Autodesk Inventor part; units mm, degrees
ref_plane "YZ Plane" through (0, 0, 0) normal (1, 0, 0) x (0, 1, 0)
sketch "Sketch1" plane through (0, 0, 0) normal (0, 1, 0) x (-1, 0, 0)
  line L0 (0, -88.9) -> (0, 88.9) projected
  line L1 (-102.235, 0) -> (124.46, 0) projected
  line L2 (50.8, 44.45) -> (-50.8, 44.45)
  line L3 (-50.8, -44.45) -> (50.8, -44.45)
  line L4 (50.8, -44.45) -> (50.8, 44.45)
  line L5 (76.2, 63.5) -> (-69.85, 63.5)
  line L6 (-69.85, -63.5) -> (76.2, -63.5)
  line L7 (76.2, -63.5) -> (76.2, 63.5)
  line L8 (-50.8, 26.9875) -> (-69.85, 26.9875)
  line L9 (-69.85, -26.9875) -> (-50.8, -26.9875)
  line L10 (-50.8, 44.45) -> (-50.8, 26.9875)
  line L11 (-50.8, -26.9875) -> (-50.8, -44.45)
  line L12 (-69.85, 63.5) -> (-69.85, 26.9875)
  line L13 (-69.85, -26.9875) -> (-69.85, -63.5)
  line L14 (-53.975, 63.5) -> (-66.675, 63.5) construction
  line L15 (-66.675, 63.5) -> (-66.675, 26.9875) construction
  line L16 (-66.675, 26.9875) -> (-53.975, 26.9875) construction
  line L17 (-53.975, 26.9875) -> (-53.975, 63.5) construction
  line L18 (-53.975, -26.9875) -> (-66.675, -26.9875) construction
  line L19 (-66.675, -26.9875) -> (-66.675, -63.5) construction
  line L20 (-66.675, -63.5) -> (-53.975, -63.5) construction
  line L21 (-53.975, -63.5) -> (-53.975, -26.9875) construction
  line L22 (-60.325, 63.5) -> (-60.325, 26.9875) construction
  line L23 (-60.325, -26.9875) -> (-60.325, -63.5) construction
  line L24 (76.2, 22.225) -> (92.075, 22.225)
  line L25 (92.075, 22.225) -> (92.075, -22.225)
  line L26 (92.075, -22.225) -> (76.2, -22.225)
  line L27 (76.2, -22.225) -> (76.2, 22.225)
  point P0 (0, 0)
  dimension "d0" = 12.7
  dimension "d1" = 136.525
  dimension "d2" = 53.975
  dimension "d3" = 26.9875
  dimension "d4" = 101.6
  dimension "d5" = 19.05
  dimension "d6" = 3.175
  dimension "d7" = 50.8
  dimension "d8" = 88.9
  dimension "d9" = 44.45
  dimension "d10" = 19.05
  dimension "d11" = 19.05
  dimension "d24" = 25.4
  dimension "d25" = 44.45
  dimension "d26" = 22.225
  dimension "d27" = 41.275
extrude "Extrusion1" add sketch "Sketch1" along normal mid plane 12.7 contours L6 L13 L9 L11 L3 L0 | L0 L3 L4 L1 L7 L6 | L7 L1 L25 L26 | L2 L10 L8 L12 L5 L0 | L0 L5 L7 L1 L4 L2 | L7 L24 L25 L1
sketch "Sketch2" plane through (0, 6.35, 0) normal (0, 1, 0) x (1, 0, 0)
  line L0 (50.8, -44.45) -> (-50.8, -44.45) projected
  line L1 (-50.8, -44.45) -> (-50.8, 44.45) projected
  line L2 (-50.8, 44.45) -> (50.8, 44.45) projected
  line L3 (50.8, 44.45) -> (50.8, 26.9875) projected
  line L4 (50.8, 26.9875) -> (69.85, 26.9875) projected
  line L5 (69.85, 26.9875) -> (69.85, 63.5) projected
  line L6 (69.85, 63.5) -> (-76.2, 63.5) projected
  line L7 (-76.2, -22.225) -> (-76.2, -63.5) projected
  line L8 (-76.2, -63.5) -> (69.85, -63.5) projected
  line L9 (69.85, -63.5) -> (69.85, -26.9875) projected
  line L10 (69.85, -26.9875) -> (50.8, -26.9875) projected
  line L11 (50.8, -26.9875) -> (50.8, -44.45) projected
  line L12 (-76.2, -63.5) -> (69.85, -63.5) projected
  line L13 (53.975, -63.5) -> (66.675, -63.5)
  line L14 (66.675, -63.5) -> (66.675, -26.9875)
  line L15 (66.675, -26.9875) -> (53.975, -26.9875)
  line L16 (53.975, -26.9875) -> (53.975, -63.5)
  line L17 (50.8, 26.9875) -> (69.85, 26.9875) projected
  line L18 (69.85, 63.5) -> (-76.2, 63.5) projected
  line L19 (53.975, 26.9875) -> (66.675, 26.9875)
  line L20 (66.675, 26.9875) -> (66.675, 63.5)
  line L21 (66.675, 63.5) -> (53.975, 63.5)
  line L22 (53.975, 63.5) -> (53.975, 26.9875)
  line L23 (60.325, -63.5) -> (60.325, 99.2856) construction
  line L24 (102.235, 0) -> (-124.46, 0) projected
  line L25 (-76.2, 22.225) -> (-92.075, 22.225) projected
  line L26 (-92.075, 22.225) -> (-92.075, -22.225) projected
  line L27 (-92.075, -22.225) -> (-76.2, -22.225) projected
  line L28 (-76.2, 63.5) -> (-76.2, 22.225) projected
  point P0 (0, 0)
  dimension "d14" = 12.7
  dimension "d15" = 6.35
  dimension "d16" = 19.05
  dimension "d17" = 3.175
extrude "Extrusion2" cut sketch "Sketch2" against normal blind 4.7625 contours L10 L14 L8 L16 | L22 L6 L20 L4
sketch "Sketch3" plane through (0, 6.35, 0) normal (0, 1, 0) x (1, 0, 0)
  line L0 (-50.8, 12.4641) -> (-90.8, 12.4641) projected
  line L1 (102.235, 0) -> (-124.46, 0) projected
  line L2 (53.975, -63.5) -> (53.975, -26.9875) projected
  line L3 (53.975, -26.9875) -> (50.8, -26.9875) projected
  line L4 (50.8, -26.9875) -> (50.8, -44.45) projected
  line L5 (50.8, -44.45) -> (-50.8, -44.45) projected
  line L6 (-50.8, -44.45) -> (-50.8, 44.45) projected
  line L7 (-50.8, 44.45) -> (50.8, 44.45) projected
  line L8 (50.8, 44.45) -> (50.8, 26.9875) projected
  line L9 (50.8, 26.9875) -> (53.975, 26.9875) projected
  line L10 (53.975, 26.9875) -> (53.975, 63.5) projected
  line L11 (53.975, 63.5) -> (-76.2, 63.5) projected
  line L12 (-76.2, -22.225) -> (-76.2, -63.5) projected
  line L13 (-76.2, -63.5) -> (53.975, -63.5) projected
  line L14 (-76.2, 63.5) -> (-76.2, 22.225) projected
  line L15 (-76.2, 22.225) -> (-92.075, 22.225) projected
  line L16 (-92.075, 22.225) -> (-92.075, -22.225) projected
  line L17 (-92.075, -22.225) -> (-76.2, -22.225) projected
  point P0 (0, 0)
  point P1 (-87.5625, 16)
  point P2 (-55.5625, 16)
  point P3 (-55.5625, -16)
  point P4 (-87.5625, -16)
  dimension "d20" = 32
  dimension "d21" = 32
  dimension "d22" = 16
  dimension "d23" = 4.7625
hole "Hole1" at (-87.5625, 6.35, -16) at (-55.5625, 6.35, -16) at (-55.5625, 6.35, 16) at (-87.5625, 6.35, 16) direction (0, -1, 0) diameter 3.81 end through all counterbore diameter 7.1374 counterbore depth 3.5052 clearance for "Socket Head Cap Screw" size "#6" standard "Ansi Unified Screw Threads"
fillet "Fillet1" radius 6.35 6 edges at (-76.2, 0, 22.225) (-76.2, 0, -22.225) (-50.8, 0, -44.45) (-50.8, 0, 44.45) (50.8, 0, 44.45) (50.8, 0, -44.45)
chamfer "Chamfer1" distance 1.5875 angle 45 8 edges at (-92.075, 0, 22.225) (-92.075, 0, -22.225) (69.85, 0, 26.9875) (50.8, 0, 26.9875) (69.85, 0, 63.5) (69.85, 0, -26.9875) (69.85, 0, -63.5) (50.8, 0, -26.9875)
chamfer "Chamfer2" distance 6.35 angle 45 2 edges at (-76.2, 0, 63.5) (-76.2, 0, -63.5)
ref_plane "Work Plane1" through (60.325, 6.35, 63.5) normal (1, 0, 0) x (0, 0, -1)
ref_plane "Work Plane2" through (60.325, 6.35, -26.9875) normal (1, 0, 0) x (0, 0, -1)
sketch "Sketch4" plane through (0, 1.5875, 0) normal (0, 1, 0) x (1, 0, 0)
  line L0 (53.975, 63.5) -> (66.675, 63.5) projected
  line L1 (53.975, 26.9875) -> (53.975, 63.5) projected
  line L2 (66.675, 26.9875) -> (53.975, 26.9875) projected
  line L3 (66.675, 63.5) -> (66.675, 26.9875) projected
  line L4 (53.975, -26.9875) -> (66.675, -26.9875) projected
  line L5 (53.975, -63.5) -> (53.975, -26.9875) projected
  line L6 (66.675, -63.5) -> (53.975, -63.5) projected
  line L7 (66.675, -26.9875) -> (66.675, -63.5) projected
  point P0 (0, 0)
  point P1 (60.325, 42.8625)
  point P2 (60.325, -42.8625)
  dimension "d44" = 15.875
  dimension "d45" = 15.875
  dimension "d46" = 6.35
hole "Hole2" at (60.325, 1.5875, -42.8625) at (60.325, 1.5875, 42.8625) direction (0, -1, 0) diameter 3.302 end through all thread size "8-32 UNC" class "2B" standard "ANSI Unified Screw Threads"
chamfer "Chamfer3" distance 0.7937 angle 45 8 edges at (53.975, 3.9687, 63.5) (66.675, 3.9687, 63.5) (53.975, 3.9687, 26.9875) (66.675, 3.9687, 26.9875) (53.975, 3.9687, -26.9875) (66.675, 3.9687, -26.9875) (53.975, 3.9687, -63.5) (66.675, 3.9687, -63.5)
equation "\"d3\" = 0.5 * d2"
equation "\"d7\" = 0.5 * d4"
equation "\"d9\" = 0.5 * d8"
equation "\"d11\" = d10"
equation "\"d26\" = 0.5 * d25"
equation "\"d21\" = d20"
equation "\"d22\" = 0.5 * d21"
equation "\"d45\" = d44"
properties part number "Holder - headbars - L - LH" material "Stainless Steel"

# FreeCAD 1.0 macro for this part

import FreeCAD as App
import Part
import Sketcher

V = App.Vector
Q = App.Units.Quantity


def edges_at(feature, points):
    """Names of the edges that pass closest to the given points."""
    edges = feature.Shape.Edges
    near = lambda p: min(range(len(edges)), key=lambda i: edges[i].distToShape(Part.Vertex(*p))[0])
    return sorted({f"Edge{near(p) + 1}" for p in points})


def add_polygon(sketch, points):
    """Adds a closed chain of lines whose ends are joined by coincident constraints."""
    first, n = sketch.GeometryCount, len(points)
    for a, b in zip(points, points[1:] + points[:1]):
        sketch.addGeometry(Part.LineSegment(App.Vector(*a, 0), App.Vector(*b, 0)), False)
    for i in range(n):
        sketch.addConstraint(Sketcher.Constraint("Coincident", first + i, 2, first + (i + 1) % n, 1))

doc = App.newDocument("Part")
body = doc.addObject("PartDesign::Body", "Body")

# Sketch on XZ plane
sketch1 = body.newObject("Sketcher::SketchObject", "Sketch")
sketch1.AttachmentSupport = (doc.getObject("XZ_Plane"), [""])
sketch1.MapMode = "FlatFace"
add_polygon(sketch1, [(69.85, -63.5), (-76.2, -63.5), (-76.2, -22.225), (-92.075, -22.225), (-92.075, 22.225), (-76.2, 22.225), (-76.2, 63.5), (69.85, 63.5), (69.85, 26.9875), (50.8, 26.9875), (50.8, 44.45), (-50.8, 44.45), (-50.8, -44.45), (50.8, -44.45), (50.8, -26.9875), (69.85, -26.9875)])  # lines 0-15
sketch1.addConstraint(Sketcher.Constraint("Horizontal", 0))
sketch1.addConstraint(Sketcher.Constraint("Vertical", 1))
sketch1.addConstraint(Sketcher.Constraint("Horizontal", 2))
sketch1.addConstraint(Sketcher.Constraint("Vertical", 3))
sketch1.addConstraint(Sketcher.Constraint("Horizontal", 4))
sketch1.addConstraint(Sketcher.Constraint("Vertical", 5))
sketch1.addConstraint(Sketcher.Constraint("Horizontal", 6))
sketch1.addConstraint(Sketcher.Constraint("Vertical", 7))
sketch1.addConstraint(Sketcher.Constraint("Horizontal", 8))
sketch1.addConstraint(Sketcher.Constraint("Vertical", 9))
sketch1.addConstraint(Sketcher.Constraint("Horizontal", 10))
sketch1.addConstraint(Sketcher.Constraint("Vertical", 11))
sketch1.addConstraint(Sketcher.Constraint("Horizontal", 12))
sketch1.addConstraint(Sketcher.Constraint("Vertical", 13))
sketch1.addConstraint(Sketcher.Constraint("Horizontal", 14))
sketch1.addConstraint(Sketcher.Constraint("Vertical", 15))
sketch1.addConstraint(Sketcher.Constraint("Symmetric", 9, 2, 11, 2, -1, 1))
sketch1.addConstraint(Sketcher.Constraint("Symmetric", 1, 2, 4, 2, -1))
sketch1.addConstraint(Sketcher.Constraint("Symmetric", 8, 2, 13, 2, -1))
sketch1.addConstraint(Sketcher.Constraint("Symmetric", 6, 2, 15, 2, -1))
sketch1.addConstraint(Sketcher.Constraint("DistanceX", 10, 2, 10, 1, Q("4 in")))
sketch1.addConstraint(Sketcher.Constraint("DistanceY", 11, 2, 11, 1, Q("3.5 in")))
sketch1.addConstraint(Sketcher.Constraint("DistanceX", 5, 2, 10, 2, Q("1 in")))
sketch1.addConstraint(Sketcher.Constraint("DistanceX", 8, 2, 8, 1, Q("0.75 in")))
sketch1.addConstraint(Sketcher.Constraint("DistanceY", 3, 1, 3, 2, Q("1.75 in")))
sketch1.addConstraint(Sketcher.Constraint("DistanceY", 1, 1, 1, 2, Q("1.625 in")))
sketch1.addConstraint(Sketcher.Constraint("DistanceY", -1, 1, 7, 2, Q("1.0625 in")))
sketch1.addConstraint(Sketcher.Constraint("DistanceX", 3, 2, 10, 2, Q("1.625 in")))
pad1 = body.newObject("PartDesign::Pad", "Pad")
pad1.Profile = sketch1
pad1.Length = Q("0.5 in")
pad1.Midplane = True

# Sketch on XZ plane
sketch2 = body.newObject("Sketcher::SketchObject", "Sketch001")
sketch2.AttachmentSupport = (doc.getObject("XZ_Plane"), [""])
sketch2.MapMode = "FlatFace"
sketch2.AttachmentOffset = App.Placement(V(0, 0, -0.25 * 25.4), App.Rotation())
add_polygon(sketch2, [(66.675, 26.9875), (53.975, 26.9875), (53.975, 63.5), (66.675, 63.5)])  # lines 0-3
add_polygon(sketch2, [(53.975, -63.5), (53.975, -26.9875), (66.675, -26.9875), (66.675, -63.5)])  # lines 4-7
sketch2.addConstraint(Sketcher.Constraint("Horizontal", 0))
sketch2.addConstraint(Sketcher.Constraint("Vertical", 1))
sketch2.addConstraint(Sketcher.Constraint("Horizontal", 2))
sketch2.addConstraint(Sketcher.Constraint("Vertical", 3))
sketch2.addConstraint(Sketcher.Constraint("Vertical", 4))
sketch2.addConstraint(Sketcher.Constraint("Horizontal", 5))
sketch2.addConstraint(Sketcher.Constraint("Vertical", 6))
sketch2.addConstraint(Sketcher.Constraint("Horizontal", 7))
sketch2.addConstraint(Sketcher.Constraint("Symmetric", 0, 2, 4, 2, -1))
sketch2.addConstraint(Sketcher.Constraint("Symmetric", 2, 2, 6, 2, -1))
sketch2.addConstraint(Sketcher.Constraint("DistanceX", 0, 2, 0, 1, Q("0.5 in")))
sketch2.addConstraint(Sketcher.Constraint("DistanceY", 6, 2, 2, 2, Q("5 in")))
sketch2.addConstraint(Sketcher.Constraint("DistanceY", 1, 1, 1, 2, Q("1.4375 in")))
sketch2.addConstraint(Sketcher.Constraint("DistanceX", -1, 1, 0, 2, Q("2.125 in")))
pocket1 = body.newObject("PartDesign::Pocket", "Pocket")
pocket1.Profile = sketch2
pocket1.Length = Q("0.1875 in")
pocket1.Reversed = True

# Sketch on XZ plane
sketch3 = body.newObject("Sketcher::SketchObject", "Sketch002")
sketch3.AttachmentSupport = (doc.getObject("XZ_Plane"), [""])
sketch3.MapMode = "FlatFace"
sketch3.AttachmentOffset = App.Placement(V(0, 0, -0.25 * 25.4), App.Rotation())
sketch3.addGeometry(Part.Circle(V(-87.5625, -16, 0), V(0, 0, 1), 1.905), False)
sketch3.addGeometry(Part.Circle(V(-55.5625, -16, 0), V(0, 0, 1), 1.905), False)
sketch3.addGeometry(Part.Circle(V(-55.5625, 16, 0), V(0, 0, 1), 1.905), False)
sketch3.addGeometry(Part.Circle(V(-87.5625, 16, 0), V(0, 0, 1), 1.905), False)
sketch3.addConstraint(Sketcher.Constraint("Equal", 0, 1))
sketch3.addConstraint(Sketcher.Constraint("Equal", 1, 2))
sketch3.addConstraint(Sketcher.Constraint("Equal", 2, 3))
sketch3.addConstraint(Sketcher.Constraint("Symmetric", 1, 3, 2, 3, -1))
sketch3.addConstraint(Sketcher.Constraint("Symmetric", 0, 3, 3, 3, -1))
sketch3.addConstraint(Sketcher.Constraint("Horizontal", 0, 3, 1, 3))
sketch3.addConstraint(Sketcher.Constraint("Diameter", 0, Q("0.15 in")))
sketch3.addConstraint(Sketcher.Constraint("DistanceX", 1, 3, -1, 1, Q("2.1875 in")))
sketch3.addConstraint(Sketcher.Constraint("DistanceX", 0, 3, -1, 1, 87.5625))
sketch3.addConstraint(Sketcher.Constraint("DistanceY", 0, 3, -1, 1, 16.0))
doc.recompute()
hole = body.newObject("PartDesign::Hole", "Hole")
hole.Profile = sketch3
hole.ThreadType = "None"
hole.Diameter = Q("0.15 in")
hole.DepthType = "ThroughAll"
hole.HoleCutType = "Counterbore"
hole.HoleCutDiameter = Q("0.281 in")
hole.HoleCutDepth = Q("0.138 in")
hole.Reversed = True
doc.recompute()

fillet = body.newObject("PartDesign::Fillet", "Fillet")
fillet.Base = (hole, edges_at(hole, [
    (-76.2, 0, 22.225),
    (-76.2, 0, -22.225),
    (-50.8, 0, -44.45),
    (-50.8, 0, 44.45),
    (50.8, 0, 44.45),
    (50.8, 0, -44.45),
]))
fillet.Radius = Q("0.25 in")
doc.recompute()

chamfer = body.newObject("PartDesign::Chamfer", "Chamfer")
chamfer.Base = (fillet, edges_at(fillet, [
    (-92.075, 0, 22.225),
    (-92.075, 0, -22.225),
    (69.85, 0, 26.988),
    (50.8, 0, 26.988),
    (69.85, 0, 63.5),
    (69.85, 0, -26.988),
    (69.85, 0, -63.5),
    (50.8, 0, -26.988),
]))
chamfer.Size = Q("0.0625 in")
doc.recompute()

chamfer2 = body.newObject("PartDesign::Chamfer", "Chamfer001")
chamfer2.Base = (chamfer, edges_at(chamfer, [(-76.2, 0, 63.5), (-76.2, 0, -63.5)]))
chamfer2.Size = Q("0.25 in")

# Sketch on XZ plane
sketch4 = body.newObject("Sketcher::SketchObject", "Sketch003")
sketch4.AttachmentSupport = (doc.getObject("XZ_Plane"), [""])
sketch4.MapMode = "FlatFace"
sketch4.AttachmentOffset = App.Placement(V(0, 0, -0.0625 * 25.4), App.Rotation())
sketch4.addGeometry(Part.Circle(V(60.325, -42.8625, 0), V(0, 0, 1), 1.651), False)
sketch4.addGeometry(Part.Circle(V(60.325, 42.8625, 0), V(0, 0, 1), 1.651), False)
sketch4.addConstraint(Sketcher.Constraint("Equal", 0, 1))
sketch4.addConstraint(Sketcher.Constraint("Symmetric", 0, 3, 1, 3, -1))
sketch4.addConstraint(Sketcher.Constraint("Diameter", 0, Q("0.13 in")))
sketch4.addConstraint(Sketcher.Constraint("DistanceX", -1, 1, 0, 3, Q("2.375 in")))
sketch4.addConstraint(Sketcher.Constraint("DistanceY", 0, 3, -1, 1, Q("1.6875 in")))
doc.recompute()
hole2 = body.newObject("PartDesign::Hole", "Hole001")
hole2.Profile = sketch4
hole2.ThreadType = "None"
hole2.Diameter = Q("0.13 in")
hole2.DepthType = "ThroughAll"
hole2.Reversed = True
doc.recompute()

chamfer3 = body.newObject("PartDesign::Chamfer", "Chamfer002")
chamfer3.Base = (hole2, edges_at(hole2, [
    (53.975, 3.969, 63.5),
    (66.675, 3.969, 63.5),
    (53.975, 3.969, 26.988),
    (66.675, 3.969, 26.988),
    (53.975, 3.969, -26.988),
    (66.675, 3.969, -26.988),
    (53.975, 3.969, -63.5),
    (66.675, 3.969, -63.5),
]))
chamfer3.Size = Q("0.031248 in")

doc.recompute()
